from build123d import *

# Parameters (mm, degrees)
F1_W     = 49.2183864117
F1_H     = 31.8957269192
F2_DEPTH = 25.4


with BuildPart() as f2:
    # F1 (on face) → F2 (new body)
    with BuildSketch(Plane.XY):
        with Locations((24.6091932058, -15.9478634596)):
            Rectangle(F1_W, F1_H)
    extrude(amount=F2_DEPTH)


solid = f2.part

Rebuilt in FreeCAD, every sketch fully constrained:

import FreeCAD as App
import Part
import Sketcher
Q = App.Units.Quantity


def add_polygon(sketch, points):
    """Adds a closed chain of lines whose ends are joined by coincident constraints."""
    first, n = sketch.GeometryCount, len(points)
    for a, b in zip(points, points[1:] + points[:1]):
        sketch.addGeometry(Part.LineSegment(App.Vector(*a, 0), App.Vector(*b, 0)), False)
    for i in range(n):
        sketch.addConstraint(Sketcher.Constraint("Coincident", first + i, 2, first + (i + 1) % n, 1))

doc = App.newDocument("Part")
body = doc.addObject("PartDesign::Body", "Body")

sketch1 = body.newObject("Sketcher::SketchObject", "Sketch")
sketch1.AttachmentSupport = (doc.getObject("XY_Plane"), [""])
sketch1.MapMode = "FlatFace"
add_polygon(sketch1, [(0, 0), (0, -32), (49, -32), (49, 0)])
sketch1.addConstraint([
    Sketcher.Constraint("Vertical", 0),
    Sketcher.Constraint("Horizontal", 1),
    Sketcher.Constraint("Vertical", 2),
    Sketcher.Constraint("Horizontal", 3),
    Sketcher.Constraint("Coincident", 3, 2, -1, 1),
    Sketcher.Constraint("DistanceX", 1, 1, 1, 2, 49.218386),
    Sketcher.Constraint("DistanceY", 0, 2, 0, 1, 31.895727),
])
pad1 = body.newObject("PartDesign::Pad", "Pad")
pad1.Profile = sketch1
pad1.Length = Q("1 in")

doc.recompute()
